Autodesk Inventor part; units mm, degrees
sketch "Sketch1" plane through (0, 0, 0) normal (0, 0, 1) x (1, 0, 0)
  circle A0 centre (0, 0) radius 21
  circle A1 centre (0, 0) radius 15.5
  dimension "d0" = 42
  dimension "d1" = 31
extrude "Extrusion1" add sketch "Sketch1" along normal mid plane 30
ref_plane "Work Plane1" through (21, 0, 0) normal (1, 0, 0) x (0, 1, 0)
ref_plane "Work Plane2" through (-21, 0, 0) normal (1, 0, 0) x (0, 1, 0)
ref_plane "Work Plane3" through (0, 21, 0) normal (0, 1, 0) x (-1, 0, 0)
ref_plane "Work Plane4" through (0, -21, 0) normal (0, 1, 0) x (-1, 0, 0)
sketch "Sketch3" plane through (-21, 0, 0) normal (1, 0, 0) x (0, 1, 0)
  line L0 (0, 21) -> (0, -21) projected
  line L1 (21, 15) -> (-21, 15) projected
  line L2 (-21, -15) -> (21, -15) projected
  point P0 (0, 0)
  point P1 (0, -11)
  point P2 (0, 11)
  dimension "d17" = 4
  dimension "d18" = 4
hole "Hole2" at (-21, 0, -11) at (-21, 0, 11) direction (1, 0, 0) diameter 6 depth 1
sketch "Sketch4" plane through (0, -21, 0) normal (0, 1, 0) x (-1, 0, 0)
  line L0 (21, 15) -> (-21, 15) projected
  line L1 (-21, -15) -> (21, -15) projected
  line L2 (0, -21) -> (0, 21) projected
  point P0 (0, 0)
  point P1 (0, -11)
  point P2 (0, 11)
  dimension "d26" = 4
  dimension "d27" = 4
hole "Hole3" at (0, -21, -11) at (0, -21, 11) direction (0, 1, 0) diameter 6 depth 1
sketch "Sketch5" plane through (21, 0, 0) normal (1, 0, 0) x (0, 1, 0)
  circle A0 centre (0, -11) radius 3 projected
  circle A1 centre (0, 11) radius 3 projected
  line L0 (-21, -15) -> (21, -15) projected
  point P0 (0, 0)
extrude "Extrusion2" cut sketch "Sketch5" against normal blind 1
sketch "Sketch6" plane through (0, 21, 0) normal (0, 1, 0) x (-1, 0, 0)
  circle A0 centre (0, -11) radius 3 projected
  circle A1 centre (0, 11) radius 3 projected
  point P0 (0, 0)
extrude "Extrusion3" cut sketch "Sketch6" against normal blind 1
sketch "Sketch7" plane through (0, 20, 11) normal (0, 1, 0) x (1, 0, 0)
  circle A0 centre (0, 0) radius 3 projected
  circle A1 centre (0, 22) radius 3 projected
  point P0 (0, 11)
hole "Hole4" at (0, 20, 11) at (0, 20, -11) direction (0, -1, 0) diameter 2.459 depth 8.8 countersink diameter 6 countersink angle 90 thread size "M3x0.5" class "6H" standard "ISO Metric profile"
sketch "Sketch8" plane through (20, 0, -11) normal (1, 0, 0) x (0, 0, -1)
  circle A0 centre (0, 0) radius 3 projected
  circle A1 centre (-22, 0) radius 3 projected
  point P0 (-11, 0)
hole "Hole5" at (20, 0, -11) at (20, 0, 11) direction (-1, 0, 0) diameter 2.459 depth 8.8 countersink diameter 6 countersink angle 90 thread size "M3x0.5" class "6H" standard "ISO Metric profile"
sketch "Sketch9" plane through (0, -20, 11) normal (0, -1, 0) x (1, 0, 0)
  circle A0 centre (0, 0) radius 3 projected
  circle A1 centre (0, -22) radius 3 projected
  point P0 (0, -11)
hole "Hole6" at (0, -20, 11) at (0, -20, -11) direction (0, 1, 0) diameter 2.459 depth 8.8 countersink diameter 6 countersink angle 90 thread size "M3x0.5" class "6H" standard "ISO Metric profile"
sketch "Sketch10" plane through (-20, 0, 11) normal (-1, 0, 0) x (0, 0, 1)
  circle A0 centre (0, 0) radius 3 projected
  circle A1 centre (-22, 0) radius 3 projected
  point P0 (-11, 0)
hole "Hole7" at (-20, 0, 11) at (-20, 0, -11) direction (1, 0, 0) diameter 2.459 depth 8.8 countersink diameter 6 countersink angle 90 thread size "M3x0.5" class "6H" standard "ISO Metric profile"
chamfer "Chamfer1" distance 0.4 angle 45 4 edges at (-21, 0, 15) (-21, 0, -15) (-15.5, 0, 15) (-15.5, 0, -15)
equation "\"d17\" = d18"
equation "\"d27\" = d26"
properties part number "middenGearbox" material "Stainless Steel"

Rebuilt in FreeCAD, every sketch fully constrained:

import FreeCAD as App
import Part
import Sketcher
from FreeCAD import Vector


def edges_at(feature, points):
    """Names of the edges that pass closest to the given points."""
    edges = feature.Shape.Edges
    near = lambda p: min(range(len(edges)), key=lambda i: edges[i].distToShape(Part.Vertex(*p))[0])
    return sorted({f"Edge{near(p) + 1}" for p in points})

doc = App.newDocument("Part")
body = doc.addObject("PartDesign::Body", "Body")

# Sketch on XY plane
sketch1 = body.newObject("Sketcher::SketchObject", "Sketch")
sketch1.AttachmentSupport = (doc.getObject("XY_Plane"), [""])
sketch1.MapMode = "FlatFace"
sketch1.addGeometry([
    Part.Circle(Vector(0, 0, 0), Vector(0, 0, 1), 21),
    Part.Circle(Vector(0, 0, 0), Vector(0, 0, 1), 15.5),
], False)
sketch1.addConstraint([
    Sketcher.Constraint("Coincident", 0, 3, -1, 1),
    Sketcher.Constraint("Coincident", 1, 3, -1, 1),
    Sketcher.Constraint("Diameter", 0, 42.0),
    Sketcher.Constraint("Diameter", 1, 31.0),
])
pad1 = body.newObject("PartDesign::Pad", "Pad")
pad1.Profile = sketch1
pad1.Length = 30
pad1.Midplane = True

# Sketch on YZ plane
sketch2 = body.newObject("Sketcher::SketchObject", "Sketch001")
sketch2.AttachmentSupport = (doc.getObject("YZ_Plane"), [""])
sketch2.MapMode = "FlatFace"
sketch2.AttachmentOffset = App.Placement(Vector(0, 0, -21), App.Rotation())
sketch2.addGeometry([
    Part.Circle(Vector(0, -11, 0), Vector(0, 0, 1), 3),
    Part.Circle(Vector(0, 11, 0), Vector(0, 0, 1), 3),
], False)
sketch2.addConstraint([
    Sketcher.Constraint("Equal", 0, 1),
    Sketcher.Constraint("Symmetric", 0, 3, 1, 3, -1, 1),
    Sketcher.Constraint("PointOnObject", 0, 3, -2),
    Sketcher.Constraint("Diameter", 0, 6.0),
    Sketcher.Constraint("DistanceY", 0, 3, -1, 1, 11.0),
])
doc.recompute()
hole = body.newObject("PartDesign::Hole", "Hole")
hole.Profile = sketch2
hole.ThreadType = "None"
hole.Diameter = 6
hole.DepthType = "Dimension"
hole.Depth = 1
hole.DrillPoint = "Flat"
hole.Reversed = True

# Sketch on XZ plane
sketch3 = body.newObject("Sketcher::SketchObject", "Sketch002")
sketch3.AttachmentSupport = (doc.getObject("XZ_Plane"), [""])
sketch3.MapMode = "FlatFace"
sketch3.AttachmentOffset = App.Placement(Vector(0, 0, 21), App.Rotation())
sketch3.addGeometry([
    Part.Circle(Vector(0, -11, 0), Vector(0, 0, 1), 3),
    Part.Circle(Vector(0, 11, 0), Vector(0, 0, 1), 3),
], False)
sketch3.addConstraint([
    Sketcher.Constraint("Equal", 0, 1),
    Sketcher.Constraint("Symmetric", 0, 3, 1, 3, -1, 1),
    Sketcher.Constraint("PointOnObject", 0, 3, -2),
    Sketcher.Constraint("Diameter", 0, 6.0),
    Sketcher.Constraint("DistanceY", 0, 3, -1, 1, 11.0),
])
doc.recompute()
hole2 = body.newObject("PartDesign::Hole", "Hole001")
hole2.Profile = sketch3
hole2.ThreadType = "None"
hole2.Diameter = 6
hole2.DepthType = "Dimension"
hole2.Depth = 1
hole2.DrillPoint = "Flat"

# Sketch on YZ plane
sketch4 = body.newObject("Sketcher::SketchObject", "Sketch003")
sketch4.AttachmentSupport = (doc.getObject("YZ_Plane"), [""])
sketch4.MapMode = "FlatFace"
sketch4.AttachmentOffset = App.Placement(Vector(0, 0, 21), App.Rotation())
sketch4.addGeometry([
    Part.Circle(Vector(0, -11, 0), Vector(0, 0, 1), 3),
    Part.Circle(Vector(0, 11, 0), Vector(0, 0, 1), 3),
], False)
sketch4.addConstraint([
    Sketcher.Constraint("Equal", 0, 1),
    Sketcher.Constraint("Symmetric", 0, 3, 1, 3, -1, 1),
    Sketcher.Constraint("PointOnObject", 0, 3, -2),
    Sketcher.Constraint("Diameter", 0, 6.0),
    Sketcher.Constraint("DistanceY", 0, 3, -1, 1, 11.0),
])
pocket1 = body.newObject("PartDesign::Pocket", "Pocket")
pocket1.Profile = sketch4
pocket1.Length = 1

# Sketch on XZ plane
sketch5 = body.newObject("Sketcher::SketchObject", "Sketch004")
sketch5.AttachmentSupport = (doc.getObject("XZ_Plane"), [""])
sketch5.MapMode = "FlatFace"
sketch5.AttachmentOffset = App.Placement(Vector(0, 0, -21), App.Rotation())
sketch5.addGeometry([
    Part.Circle(Vector(0, -11, 0), Vector(0, 0, 1), 3),
    Part.Circle(Vector(0, 11, 0), Vector(0, 0, 1), 3),
], False)
sketch5.addConstraint([
    Sketcher.Constraint("Equal", 0, 1),
    Sketcher.Constraint("Symmetric", 0, 3, 1, 3, -1, 1),
    Sketcher.Constraint("PointOnObject", 0, 3, -2),
    Sketcher.Constraint("Diameter", 0, 6.0),
    Sketcher.Constraint("DistanceY", 0, 3, -1, 1, 11.0),
])
pocket2 = body.newObject("PartDesign::Pocket", "Pocket001")
pocket2.Profile = sketch5
pocket2.Length = 1
pocket2.Reversed = True

# Sketch on XZ plane
sketch6 = body.newObject("Sketcher::SketchObject", "Sketch005")
sketch6.AttachmentSupport = (doc.getObject("XZ_Plane"), [""])
sketch6.MapMode = "FlatFace"
sketch6.AttachmentOffset = App.Placement(Vector(0, 0, -20), App.Rotation())
sketch6.addGeometry([
    Part.Circle(Vector(0, 11, 0), Vector(0, 0, 1), 1.2295),
    Part.Circle(Vector(0, -11, 0), Vector(0, 0, 1), 1.2295),
], False)
sketch6.addConstraint([
    Sketcher.Constraint("Equal", 0, 1),
    Sketcher.Constraint("Symmetric", 0, 3, 1, 3, -1, 1),
    Sketcher.Constraint("PointOnObject", 0, 3, -2),
    Sketcher.Constraint("Diameter", 0, 2.459),
    Sketcher.Constraint("DistanceY", -1, 1, 0, 3, 11.0),
])
doc.recompute()
hole3 = body.newObject("PartDesign::Hole", "Hole002")
hole3.Profile = sketch6
hole3.ThreadType = "None"
hole3.Diameter = 2.459
hole3.DepthType = "Dimension"
hole3.Depth = 8.8
hole3.DrillPoint = "Flat"
hole3.HoleCutType = "Countersink"
hole3.HoleCutDiameter = 6
hole3.HoleCutCountersinkAngle = 90
hole3.Reversed = True

# Sketch on YZ plane
sketch7 = body.newObject("Sketcher::SketchObject", "Sketch006")
sketch7.AttachmentSupport = (doc.getObject("YZ_Plane"), [""])
sketch7.MapMode = "FlatFace"
sketch7.AttachmentOffset = App.Placement(Vector(0, 0, 20), App.Rotation())
sketch7.addGeometry([
    Part.Circle(Vector(0, -11, 0), Vector(0, 0, 1), 1.2295),
    Part.Circle(Vector(0, 11, 0), Vector(0, 0, 1), 1.2295),
], False)
sketch7.addConstraint([
    Sketcher.Constraint("Equal", 0, 1),
    Sketcher.Constraint("Symmetric", 0, 3, 1, 3, -1, 1),
    Sketcher.Constraint("PointOnObject", 0, 3, -2),
    Sketcher.Constraint("Diameter", 0, 2.459),
    Sketcher.Constraint("DistanceY", 0, 3, -1, 1, 11.0),
])
doc.recompute()
hole4 = body.newObject("PartDesign::Hole", "Hole003")
hole4.Profile = sketch7
hole4.ThreadType = "None"
hole4.Diameter = 2.459
hole4.DepthType = "Dimension"
hole4.Depth = 8.8
hole4.DrillPoint = "Flat"
hole4.HoleCutType = "Countersink"
hole4.HoleCutDiameter = 6
hole4.HoleCutCountersinkAngle = 90

# Sketch on XZ plane
sketch8 = body.newObject("Sketcher::SketchObject", "Sketch007")
sketch8.AttachmentSupport = (doc.getObject("XZ_Plane"), [""])
sketch8.MapMode = "FlatFace"
sketch8.AttachmentOffset = App.Placement(Vector(0, 0, 20), App.Rotation())
sketch8.addGeometry([
    Part.Circle(Vector(0, 11, 0), Vector(0, 0, 1), 1.2295),
    Part.Circle(Vector(0, -11, 0), Vector(0, 0, 1), 1.2295),
], False)
sketch8.addConstraint([
    Sketcher.Constraint("Equal", 0, 1),
    Sketcher.Constraint("Symmetric", 0, 3, 1, 3, -1, 1),
    Sketcher.Constraint("PointOnObject", 0, 3, -2),
    Sketcher.Constraint("Diameter", 0, 2.459),
    Sketcher.Constraint("DistanceY", -1, 1, 0, 3, 11.0),
])
doc.recompute()
hole5 = body.newObject("PartDesign::Hole", "Hole004")
hole5.Profile = sketch8
hole5.ThreadType = "None"
hole5.Diameter = 2.459
hole5.DepthType = "Dimension"
hole5.Depth = 8.8
hole5.DrillPoint = "Flat"
hole5.HoleCutType = "Countersink"
hole5.HoleCutDiameter = 6
hole5.HoleCutCountersinkAngle = 90

# Sketch on YZ plane
sketch9 = body.newObject("Sketcher::SketchObject", "Sketch008")
sketch9.AttachmentSupport = (doc.getObject("YZ_Plane"), [""])
sketch9.MapMode = "FlatFace"
sketch9.AttachmentOffset = App.Placement(Vector(0, 0, -20), App.Rotation())
sketch9.addGeometry([
    Part.Circle(Vector(0, 11, 0), Vector(0, 0, 1), 1.2295),
    Part.Circle(Vector(0, -11, 0), Vector(0, 0, 1), 1.2295),
], False)
sketch9.addConstraint([
    Sketcher.Constraint("Equal", 0, 1),
    Sketcher.Constraint("Symmetric", 0, 3, 1, 3, -1, 1),
    Sketcher.Constraint("PointOnObject", 0, 3, -2),
    Sketcher.Constraint("Diameter", 0, 2.459),
    Sketcher.Constraint("DistanceY", -1, 1, 0, 3, 11.0),
])
doc.recompute()
hole6 = body.newObject("PartDesign::Hole", "Hole005")
hole6.Profile = sketch9
hole6.ThreadType = "None"
hole6.Diameter = 2.459
hole6.DepthType = "Dimension"
hole6.Depth = 8.8
hole6.DrillPoint = "Flat"
hole6.HoleCutType = "Countersink"
hole6.HoleCutDiameter = 6
hole6.HoleCutCountersinkAngle = 90
hole6.Reversed = True
doc.recompute()

chamfer = body.newObject("PartDesign::Chamfer", "Chamfer")
chamfer.Base = (hole6, edges_at(hole6, [
    (-21, 0, 15),
    (-21, 0, -15),
    (-15.5, 0, 15),
    (-15.5, 0, -15),
]))
chamfer.Size = 0.4

doc.recompute()
